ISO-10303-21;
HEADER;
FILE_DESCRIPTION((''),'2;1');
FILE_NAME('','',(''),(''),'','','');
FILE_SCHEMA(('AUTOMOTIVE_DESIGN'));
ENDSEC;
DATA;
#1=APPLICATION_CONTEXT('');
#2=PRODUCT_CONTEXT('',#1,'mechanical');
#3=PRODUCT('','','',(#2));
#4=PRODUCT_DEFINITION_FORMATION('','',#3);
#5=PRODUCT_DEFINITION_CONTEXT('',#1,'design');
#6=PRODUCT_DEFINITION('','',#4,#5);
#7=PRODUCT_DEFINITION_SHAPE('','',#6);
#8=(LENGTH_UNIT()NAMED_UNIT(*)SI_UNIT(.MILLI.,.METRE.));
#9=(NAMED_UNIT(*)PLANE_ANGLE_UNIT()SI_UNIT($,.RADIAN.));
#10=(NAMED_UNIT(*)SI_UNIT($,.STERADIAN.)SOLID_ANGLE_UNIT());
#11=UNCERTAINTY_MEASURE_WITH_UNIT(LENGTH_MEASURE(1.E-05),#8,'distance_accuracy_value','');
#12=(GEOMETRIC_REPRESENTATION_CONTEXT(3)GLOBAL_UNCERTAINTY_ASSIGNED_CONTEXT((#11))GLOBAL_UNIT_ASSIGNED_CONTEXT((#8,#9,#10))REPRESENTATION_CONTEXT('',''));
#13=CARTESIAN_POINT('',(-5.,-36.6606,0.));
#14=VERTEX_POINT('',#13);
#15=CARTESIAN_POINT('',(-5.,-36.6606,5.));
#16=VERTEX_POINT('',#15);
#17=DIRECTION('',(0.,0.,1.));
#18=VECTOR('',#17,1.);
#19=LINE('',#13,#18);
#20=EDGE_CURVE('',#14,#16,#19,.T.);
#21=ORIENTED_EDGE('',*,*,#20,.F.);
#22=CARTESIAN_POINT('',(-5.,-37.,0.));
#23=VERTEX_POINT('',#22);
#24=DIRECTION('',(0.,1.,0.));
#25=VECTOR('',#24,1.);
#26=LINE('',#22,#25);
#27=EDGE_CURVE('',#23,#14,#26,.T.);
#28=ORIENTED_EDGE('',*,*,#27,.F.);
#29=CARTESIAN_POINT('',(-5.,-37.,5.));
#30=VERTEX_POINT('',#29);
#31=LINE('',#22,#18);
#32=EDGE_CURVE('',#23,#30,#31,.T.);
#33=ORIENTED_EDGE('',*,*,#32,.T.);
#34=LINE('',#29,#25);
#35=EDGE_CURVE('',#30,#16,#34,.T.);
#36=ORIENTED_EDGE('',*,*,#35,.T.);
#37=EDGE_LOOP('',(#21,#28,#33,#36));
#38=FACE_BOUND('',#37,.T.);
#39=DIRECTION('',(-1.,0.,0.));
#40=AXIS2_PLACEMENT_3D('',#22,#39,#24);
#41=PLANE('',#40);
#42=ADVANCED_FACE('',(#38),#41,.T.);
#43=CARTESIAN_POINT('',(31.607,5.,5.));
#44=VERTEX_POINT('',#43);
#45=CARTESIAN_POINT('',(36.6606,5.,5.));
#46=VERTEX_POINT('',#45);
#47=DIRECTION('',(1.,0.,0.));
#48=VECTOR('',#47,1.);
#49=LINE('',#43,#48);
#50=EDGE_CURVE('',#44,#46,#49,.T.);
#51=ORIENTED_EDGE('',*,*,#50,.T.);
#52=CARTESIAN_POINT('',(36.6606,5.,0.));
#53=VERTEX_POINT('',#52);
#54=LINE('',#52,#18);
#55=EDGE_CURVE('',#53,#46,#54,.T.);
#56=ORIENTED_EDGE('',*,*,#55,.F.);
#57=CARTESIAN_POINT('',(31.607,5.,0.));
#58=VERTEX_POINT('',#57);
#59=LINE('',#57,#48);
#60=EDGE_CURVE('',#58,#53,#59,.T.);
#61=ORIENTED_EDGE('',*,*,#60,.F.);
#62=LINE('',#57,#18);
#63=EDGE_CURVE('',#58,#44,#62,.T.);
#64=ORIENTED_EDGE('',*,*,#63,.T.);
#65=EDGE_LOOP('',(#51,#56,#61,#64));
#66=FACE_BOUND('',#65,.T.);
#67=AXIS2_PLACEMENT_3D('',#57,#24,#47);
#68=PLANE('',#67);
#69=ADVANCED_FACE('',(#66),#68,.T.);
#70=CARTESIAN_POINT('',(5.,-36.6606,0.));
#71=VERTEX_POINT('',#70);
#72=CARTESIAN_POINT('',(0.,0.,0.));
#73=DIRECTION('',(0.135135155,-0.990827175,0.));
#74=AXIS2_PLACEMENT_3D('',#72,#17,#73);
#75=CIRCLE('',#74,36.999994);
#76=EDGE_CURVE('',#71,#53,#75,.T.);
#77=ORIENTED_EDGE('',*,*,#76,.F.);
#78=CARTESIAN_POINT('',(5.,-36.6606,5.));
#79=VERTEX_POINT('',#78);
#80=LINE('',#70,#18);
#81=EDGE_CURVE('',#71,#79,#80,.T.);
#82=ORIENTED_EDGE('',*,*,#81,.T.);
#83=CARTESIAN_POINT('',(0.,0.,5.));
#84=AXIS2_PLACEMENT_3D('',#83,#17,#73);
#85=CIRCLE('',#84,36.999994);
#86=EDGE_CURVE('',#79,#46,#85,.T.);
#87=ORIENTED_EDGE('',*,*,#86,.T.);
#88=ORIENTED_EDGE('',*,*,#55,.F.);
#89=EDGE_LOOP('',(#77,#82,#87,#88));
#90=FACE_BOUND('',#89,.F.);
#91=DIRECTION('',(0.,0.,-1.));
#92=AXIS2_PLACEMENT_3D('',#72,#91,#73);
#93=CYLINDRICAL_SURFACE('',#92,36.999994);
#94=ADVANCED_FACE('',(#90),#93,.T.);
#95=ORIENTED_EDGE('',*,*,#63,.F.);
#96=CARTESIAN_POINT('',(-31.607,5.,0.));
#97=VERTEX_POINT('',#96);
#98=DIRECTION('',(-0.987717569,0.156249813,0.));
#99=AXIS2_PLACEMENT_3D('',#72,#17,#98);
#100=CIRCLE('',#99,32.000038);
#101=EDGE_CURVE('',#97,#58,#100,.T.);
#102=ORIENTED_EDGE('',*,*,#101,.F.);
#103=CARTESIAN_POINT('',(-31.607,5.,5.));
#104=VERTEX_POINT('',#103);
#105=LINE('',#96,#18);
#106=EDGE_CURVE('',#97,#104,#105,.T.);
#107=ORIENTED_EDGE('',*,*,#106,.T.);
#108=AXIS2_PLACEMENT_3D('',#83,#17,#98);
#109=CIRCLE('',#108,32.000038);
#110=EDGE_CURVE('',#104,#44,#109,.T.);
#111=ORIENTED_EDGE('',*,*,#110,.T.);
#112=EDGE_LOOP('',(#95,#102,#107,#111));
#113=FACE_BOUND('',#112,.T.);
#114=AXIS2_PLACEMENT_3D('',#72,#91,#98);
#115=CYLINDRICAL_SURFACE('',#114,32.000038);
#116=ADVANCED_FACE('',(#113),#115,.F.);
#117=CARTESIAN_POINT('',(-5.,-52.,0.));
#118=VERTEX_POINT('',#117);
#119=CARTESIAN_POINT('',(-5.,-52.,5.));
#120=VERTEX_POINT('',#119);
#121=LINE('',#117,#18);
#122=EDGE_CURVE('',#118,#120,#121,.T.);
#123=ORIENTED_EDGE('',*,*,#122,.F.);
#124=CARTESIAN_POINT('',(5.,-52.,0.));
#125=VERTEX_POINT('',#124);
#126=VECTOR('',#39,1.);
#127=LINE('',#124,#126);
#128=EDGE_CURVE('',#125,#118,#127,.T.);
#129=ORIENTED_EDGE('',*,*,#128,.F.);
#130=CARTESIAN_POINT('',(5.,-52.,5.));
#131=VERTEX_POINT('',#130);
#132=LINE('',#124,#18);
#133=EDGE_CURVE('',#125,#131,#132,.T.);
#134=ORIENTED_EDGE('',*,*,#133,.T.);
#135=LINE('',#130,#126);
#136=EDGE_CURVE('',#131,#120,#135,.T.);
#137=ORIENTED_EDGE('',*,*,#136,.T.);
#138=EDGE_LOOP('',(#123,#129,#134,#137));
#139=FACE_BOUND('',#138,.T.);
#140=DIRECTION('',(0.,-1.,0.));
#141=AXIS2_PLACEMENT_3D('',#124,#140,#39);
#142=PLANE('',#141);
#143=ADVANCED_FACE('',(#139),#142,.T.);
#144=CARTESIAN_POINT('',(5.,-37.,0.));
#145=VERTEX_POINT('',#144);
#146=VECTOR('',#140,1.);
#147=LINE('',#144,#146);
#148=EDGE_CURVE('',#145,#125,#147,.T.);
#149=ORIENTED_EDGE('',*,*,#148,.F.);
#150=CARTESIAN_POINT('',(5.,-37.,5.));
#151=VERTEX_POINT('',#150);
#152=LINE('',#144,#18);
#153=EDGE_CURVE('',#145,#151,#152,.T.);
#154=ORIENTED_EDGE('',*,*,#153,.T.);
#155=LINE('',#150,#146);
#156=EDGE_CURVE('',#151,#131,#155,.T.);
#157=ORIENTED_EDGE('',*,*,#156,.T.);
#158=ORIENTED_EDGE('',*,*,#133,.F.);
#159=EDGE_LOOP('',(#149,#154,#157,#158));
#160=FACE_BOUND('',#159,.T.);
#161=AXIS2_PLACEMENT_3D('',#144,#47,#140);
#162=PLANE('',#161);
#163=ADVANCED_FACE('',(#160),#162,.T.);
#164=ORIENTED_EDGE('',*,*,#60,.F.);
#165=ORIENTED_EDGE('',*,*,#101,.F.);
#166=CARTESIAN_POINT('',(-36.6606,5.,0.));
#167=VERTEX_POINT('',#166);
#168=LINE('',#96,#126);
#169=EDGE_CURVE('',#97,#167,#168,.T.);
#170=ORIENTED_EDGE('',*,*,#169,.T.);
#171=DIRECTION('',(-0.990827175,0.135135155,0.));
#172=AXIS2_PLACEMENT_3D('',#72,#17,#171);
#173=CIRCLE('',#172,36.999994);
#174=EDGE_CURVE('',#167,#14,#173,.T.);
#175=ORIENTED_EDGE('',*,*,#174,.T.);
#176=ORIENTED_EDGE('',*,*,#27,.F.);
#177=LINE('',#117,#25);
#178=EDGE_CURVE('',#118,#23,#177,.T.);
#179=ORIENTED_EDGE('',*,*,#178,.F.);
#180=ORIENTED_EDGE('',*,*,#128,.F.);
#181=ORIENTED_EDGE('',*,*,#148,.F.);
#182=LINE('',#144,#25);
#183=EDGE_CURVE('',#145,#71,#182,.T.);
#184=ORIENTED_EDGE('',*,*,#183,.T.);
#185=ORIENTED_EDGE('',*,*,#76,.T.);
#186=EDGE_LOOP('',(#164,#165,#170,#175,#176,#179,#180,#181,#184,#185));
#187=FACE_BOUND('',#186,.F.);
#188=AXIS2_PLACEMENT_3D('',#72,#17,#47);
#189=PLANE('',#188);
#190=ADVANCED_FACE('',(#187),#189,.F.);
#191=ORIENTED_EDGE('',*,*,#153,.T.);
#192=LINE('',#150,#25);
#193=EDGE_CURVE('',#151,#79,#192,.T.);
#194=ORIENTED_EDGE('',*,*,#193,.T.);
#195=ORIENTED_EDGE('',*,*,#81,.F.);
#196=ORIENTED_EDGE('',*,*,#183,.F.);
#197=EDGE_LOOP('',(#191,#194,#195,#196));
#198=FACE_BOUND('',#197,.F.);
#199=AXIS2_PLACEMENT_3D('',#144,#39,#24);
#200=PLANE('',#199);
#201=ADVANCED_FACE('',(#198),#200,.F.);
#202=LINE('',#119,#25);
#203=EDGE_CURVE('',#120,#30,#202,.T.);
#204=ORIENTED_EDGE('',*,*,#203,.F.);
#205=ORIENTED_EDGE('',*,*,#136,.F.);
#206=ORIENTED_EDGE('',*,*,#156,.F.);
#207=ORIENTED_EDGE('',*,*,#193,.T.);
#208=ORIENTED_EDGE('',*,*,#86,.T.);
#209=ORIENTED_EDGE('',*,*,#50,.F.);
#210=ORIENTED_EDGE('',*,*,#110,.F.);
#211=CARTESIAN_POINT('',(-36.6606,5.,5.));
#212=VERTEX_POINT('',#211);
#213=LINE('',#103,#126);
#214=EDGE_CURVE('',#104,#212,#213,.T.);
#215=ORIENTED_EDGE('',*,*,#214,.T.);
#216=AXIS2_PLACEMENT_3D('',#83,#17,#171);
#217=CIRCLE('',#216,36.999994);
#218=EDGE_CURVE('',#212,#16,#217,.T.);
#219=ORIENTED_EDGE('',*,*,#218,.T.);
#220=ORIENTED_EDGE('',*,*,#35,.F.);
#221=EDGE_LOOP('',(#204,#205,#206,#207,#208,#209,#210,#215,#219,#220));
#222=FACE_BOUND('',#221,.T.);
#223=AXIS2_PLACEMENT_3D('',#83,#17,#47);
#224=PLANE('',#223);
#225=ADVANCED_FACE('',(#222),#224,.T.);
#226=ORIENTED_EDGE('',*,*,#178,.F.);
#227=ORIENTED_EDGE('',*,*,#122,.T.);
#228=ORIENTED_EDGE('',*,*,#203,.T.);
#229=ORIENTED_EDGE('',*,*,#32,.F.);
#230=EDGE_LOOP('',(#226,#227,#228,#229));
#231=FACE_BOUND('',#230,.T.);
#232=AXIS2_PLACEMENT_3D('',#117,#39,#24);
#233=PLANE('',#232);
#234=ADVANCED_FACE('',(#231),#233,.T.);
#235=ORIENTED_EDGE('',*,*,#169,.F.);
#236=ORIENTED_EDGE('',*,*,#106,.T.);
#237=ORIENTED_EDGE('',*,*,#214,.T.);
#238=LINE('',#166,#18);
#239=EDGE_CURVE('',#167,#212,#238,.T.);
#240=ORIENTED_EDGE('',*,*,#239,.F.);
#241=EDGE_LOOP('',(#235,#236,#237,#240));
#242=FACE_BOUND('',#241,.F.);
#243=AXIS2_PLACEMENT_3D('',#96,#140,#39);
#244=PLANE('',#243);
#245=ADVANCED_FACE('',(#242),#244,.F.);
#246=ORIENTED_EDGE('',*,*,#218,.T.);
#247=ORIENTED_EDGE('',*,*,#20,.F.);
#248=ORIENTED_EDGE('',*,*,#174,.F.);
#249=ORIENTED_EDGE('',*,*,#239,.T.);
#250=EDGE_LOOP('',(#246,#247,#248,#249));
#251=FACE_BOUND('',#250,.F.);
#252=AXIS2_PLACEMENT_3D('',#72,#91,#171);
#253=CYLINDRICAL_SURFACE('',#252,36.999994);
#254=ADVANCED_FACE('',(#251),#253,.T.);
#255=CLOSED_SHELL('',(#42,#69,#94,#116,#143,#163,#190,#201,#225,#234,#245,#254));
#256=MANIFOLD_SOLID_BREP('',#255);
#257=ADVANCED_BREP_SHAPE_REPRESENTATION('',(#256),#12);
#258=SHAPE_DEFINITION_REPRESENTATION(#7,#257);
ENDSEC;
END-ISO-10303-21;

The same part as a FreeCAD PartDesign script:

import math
import FreeCAD as App
import Part
import Sketcher

V = App.Vector
Q = App.Units.Quantity

doc = App.newDocument("Part")
body = doc.addObject("PartDesign::Body", "Body")

# Sketch on XY plane
sketch1 = doc.addObject("Sketcher::SketchObject", "Sketch")
body.addObject(sketch1)
sketch1.AttachmentSupport = (doc.XY_Plane, [""])
sketch1.MapMode = "FlatFace"
sketch1.addGeometry(Part.ArcOfCircle(Part.Circle(V(0, 0, 0), V(0, 0, 1), 32), math.radians(171), math.radians(369)), False)
sketch1.addGeometry(Part.LineSegment(V(-32, 5, 0), V(-37, 5, 0)), False)
sketch1.addGeometry(Part.ArcOfCircle(Part.Circle(V(0, 0, 0), V(0, 0, 1), 37), math.radians(172), math.radians(262)), False)
sketch1.addGeometry(Part.LineSegment(V(-5, -37, 0), V(-5, -52, 0)), False)
sketch1.addGeometry(Part.LineSegment(V(-5, -52, 0), V(5, -52, 0)), False)
sketch1.addGeometry(Part.LineSegment(V(5, -52, 0), V(5, -37, 0)), False)
sketch1.addGeometry(Part.ArcOfCircle(Part.Circle(V(0, 0, 0), V(0, 0, 1), 37), math.radians(-82), math.radians(8)), False)
sketch1.addGeometry(Part.LineSegment(V(37, 5, 0), V(32, 5, 0)), False)
sketch1.addConstraint(Sketcher.Constraint("Coincident", 0, 1, 1, 1))
sketch1.addConstraint(Sketcher.Constraint("Coincident", 1, 2, 2, 1))
sketch1.addConstraint(Sketcher.Constraint("Coincident", 2, 2, 3, 1))
sketch1.addConstraint(Sketcher.Constraint("Coincident", 3, 2, 4, 1))
sketch1.addConstraint(Sketcher.Constraint("Coincident", 4, 2, 5, 1))
sketch1.addConstraint(Sketcher.Constraint("Coincident", 5, 2, 6, 1))
sketch1.addConstraint(Sketcher.Constraint("Coincident", 6, 2, 7, 1))
sketch1.addConstraint(Sketcher.Constraint("Coincident", 7, 2, 0, 2))
sketch1.addConstraint(Sketcher.Constraint("Horizontal", 1))
sketch1.addConstraint(Sketcher.Constraint("Vertical", 3))
sketch1.addConstraint(Sketcher.Constraint("Horizontal", 4))
sketch1.addConstraint(Sketcher.Constraint("Vertical", 5))
sketch1.addConstraint(Sketcher.Constraint("Horizontal", 7))
sketch1.addConstraint(Sketcher.Constraint("Coincident", 0, 3, -1, 1))
sketch1.addConstraint(Sketcher.Constraint("Coincident", 2, 3, -1, 1))
sketch1.addConstraint(Sketcher.Constraint("Coincident", 6, 3, -1, 1))
sketch1.addConstraint(Sketcher.Constraint("Equal", 2, 6))
sketch1.addConstraint(Sketcher.Constraint("Horizontal", 2, 2, 5, 2))
sketch1.addConstraint(Sketcher.Constraint("Horizontal", 1, 2, 6, 2))
sketch1.addConstraint(Sketcher.Constraint("Radius", 0, Q("32 mm")))
sketch1.addConstraint(Sketcher.Constraint("DistanceX", 4, 1, 4, 2, Q("10 mm")))
sketch1.addConstraint(Sketcher.Constraint("Radius", 2, Q("37 mm")))
sketch1.addConstraint(Sketcher.Constraint("DistanceY", -1, 1, 0, 1, Q("5 mm")))
sketch1.addConstraint(Sketcher.Constraint("DistanceY", 3, 2, -1, 1, Q("52 mm")))
pad1 = doc.addObject("PartDesign::Pad", "Pad")
body.addObject(pad1)
pad1.Profile = sketch1
pad1.Length = 5

doc.recompute()
